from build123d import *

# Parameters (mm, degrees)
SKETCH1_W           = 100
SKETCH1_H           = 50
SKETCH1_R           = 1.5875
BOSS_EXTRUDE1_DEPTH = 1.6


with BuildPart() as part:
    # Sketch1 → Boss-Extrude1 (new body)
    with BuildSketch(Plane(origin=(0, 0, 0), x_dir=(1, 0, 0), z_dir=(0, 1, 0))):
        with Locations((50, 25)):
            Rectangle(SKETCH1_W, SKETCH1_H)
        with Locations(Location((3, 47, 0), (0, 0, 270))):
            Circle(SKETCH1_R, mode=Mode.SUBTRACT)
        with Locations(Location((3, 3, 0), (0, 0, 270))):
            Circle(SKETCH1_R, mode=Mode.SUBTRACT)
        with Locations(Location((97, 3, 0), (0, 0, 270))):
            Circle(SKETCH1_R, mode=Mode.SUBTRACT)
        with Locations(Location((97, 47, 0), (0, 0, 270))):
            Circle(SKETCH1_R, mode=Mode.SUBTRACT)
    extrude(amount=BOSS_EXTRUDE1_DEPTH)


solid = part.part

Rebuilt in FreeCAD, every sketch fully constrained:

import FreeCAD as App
import Part
import Sketcher

doc = App.newDocument("Part")
body = doc.addObject("PartDesign::Body", "Body")

# Sketch on XZ plane
sketch1 = body.newObject("Sketcher::SketchObject", "Sketch")
sketch1.AttachmentSupport = (doc.getObject("XZ_Plane"), [""])
sketch1.MapMode = "FlatFace"
sketch1.addGeometry([
    Part.LineSegment(App.Vector(0, -50, 0), App.Vector(0, 0, 0)),  # 0
    Part.LineSegment(App.Vector(0, 0, 0), App.Vector(100, 0, 0)),  # 1
    Part.LineSegment(App.Vector(100, 0, 0), App.Vector(100, -50, 0)),  # 2
    Part.LineSegment(App.Vector(100, -50, 0), App.Vector(0, -50, 0)),  # 3
    Part.Circle(App.Vector(3, -3, 0), App.Vector(0, 0, 1), 1.6),  # 4
    Part.Circle(App.Vector(97, -3, 0), App.Vector(0, 0, 1), 1.6),  # 5
    Part.Circle(App.Vector(3, -47, 0), App.Vector(0, 0, 1), 1.6),  # 6
    Part.Circle(App.Vector(97, -47, 0), App.Vector(0, 0, 1), 1.6),  # 7
], False)
sketch1.addConstraint([
    Sketcher.Constraint("Coincident", 0, 2, 1, 1),
    Sketcher.Constraint("Coincident", 1, 2, 2, 1),
    Sketcher.Constraint("Coincident", 2, 2, 3, 1),
    Sketcher.Constraint("Coincident", 3, 2, 0, 1),
    Sketcher.Constraint("Vertical", 0),
    Sketcher.Constraint("Horizontal", 1),
    Sketcher.Constraint("Vertical", 2),
    Sketcher.Constraint("Horizontal", 3),
    Sketcher.Constraint("Coincident", 0, 2, -1, 1),
    Sketcher.Constraint("Equal", 4, 5),
    Sketcher.Constraint("Equal", 5, 6),
    Sketcher.Constraint("Equal", 6, 7),
    Sketcher.Constraint("Horizontal", 4, 3, 5, 3),
    Sketcher.Constraint("Horizontal", 6, 3, 7, 3),
    Sketcher.Constraint("Vertical", 4, 3, 6, 3),
    Sketcher.Constraint("Vertical", 5, 3, 7, 3),
    Sketcher.Constraint("DistanceX", 1, 1, 1, 2, 100.0),
    Sketcher.Constraint("DistanceY", 0, 1, 0, 2, 50.0),
    Sketcher.Constraint("Diameter", 4, 3.175),
    Sketcher.Constraint("DistanceX", -1, 1, 4, 3, 3.0),
    Sketcher.Constraint("DistanceY", 4, 3, -1, 1, 3.0),
    Sketcher.Constraint("DistanceX", -1, 1, 5, 3, 97.0),
    Sketcher.Constraint("DistanceY", 6, 3, -1, 1, 47.0),
])
pad1 = body.newObject("PartDesign::Pad", "Pad")
pad1.Profile = sketch1
pad1.Length = 1.6
pad1.Reversed = True

doc.recompute()
